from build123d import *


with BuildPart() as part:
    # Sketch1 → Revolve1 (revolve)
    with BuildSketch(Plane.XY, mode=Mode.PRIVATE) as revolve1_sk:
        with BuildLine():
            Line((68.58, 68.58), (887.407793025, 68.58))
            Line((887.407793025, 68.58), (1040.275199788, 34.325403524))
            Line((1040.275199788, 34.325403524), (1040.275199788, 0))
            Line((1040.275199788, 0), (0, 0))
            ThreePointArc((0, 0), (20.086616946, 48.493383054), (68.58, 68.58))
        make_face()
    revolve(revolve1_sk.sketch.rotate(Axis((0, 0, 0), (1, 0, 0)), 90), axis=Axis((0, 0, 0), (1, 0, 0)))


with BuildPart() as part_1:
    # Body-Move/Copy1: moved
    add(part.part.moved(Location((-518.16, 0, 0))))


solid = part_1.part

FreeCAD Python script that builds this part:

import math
import FreeCAD as App
import Part
import Sketcher
from FreeCAD import Vector
Q = App.Units.Quantity

doc = App.newDocument("Part")
body = doc.addObject("PartDesign::Body", "Body")

# Sketch on XY plane
sketch1 = doc.addObject("Sketcher::SketchObject", "Sketch")
body.addObject(sketch1)
sketch1.AttachmentSupport = (doc.XY_Plane, [""])
sketch1.MapMode = "FlatFace"
sketch1.addGeometry(Part.LineSegment(Vector(887, 69, 0), Vector(69, 69, 0)), False)
sketch1.addGeometry(Part.ArcOfCircle(Part.Circle(Vector(69, 0, 0), Vector(0, 0, 1), 69), math.radians(90), math.radians(180)), False)
sketch1.addGeometry(Part.LineSegment(Vector(0, 0, 0), Vector(1040, 0, 0)), False)
sketch1.addGeometry(Part.LineSegment(Vector(1040, 0, 0), Vector(1040, 34, 0)), False)
sketch1.addGeometry(Part.LineSegment(Vector(1040, 34, 0), Vector(887, 69, 0)), False)
sketch1.addConstraint(Sketcher.Constraint("Tangent", 0, 2, 1, 1))
sketch1.addConstraint(Sketcher.Constraint("Coincident", 1, 2, 2, 1))
sketch1.addConstraint(Sketcher.Constraint("Coincident", 2, 2, 3, 1))
sketch1.addConstraint(Sketcher.Constraint("Coincident", 3, 2, 4, 1))
sketch1.addConstraint(Sketcher.Constraint("Coincident", 4, 2, 0, 1))
sketch1.addConstraint(Sketcher.Constraint("Horizontal", 0))
sketch1.addConstraint(Sketcher.Constraint("Horizontal", 2))
sketch1.addConstraint(Sketcher.Constraint("Vertical", 3))
sketch1.addConstraint(Sketcher.Constraint("Coincident", 1, 2, -1, 1))
sketch1.addConstraint(Sketcher.Constraint("PointOnObject", 1, 3, -1))
sketch1.addConstraint(Sketcher.Constraint("Radius", 1, Q("2.7 in")))
sketch1.addConstraint(Sketcher.Constraint("DistanceX", 2, 1, 2, 2, 1040.2752))
sketch1.addConstraint(Sketcher.Constraint("DistanceX", 0, 2, 0, 1, 818.827793))
sketch1.addConstraint(Sketcher.Constraint("DistanceY", 3, 1, 3, 2, 34.325404))
revolution = doc.addObject("PartDesign::Revolution", "Revolution")
body.addObject(revolution)
revolution.Profile = sketch1
revolution.ReferenceAxis = (sketch1, ["H_Axis"])
revolution.Angle = 360
body2 = doc.addObject("PartDesign::Body", "Body001")
doc.recompute()

body.Placement = App.Placement(Vector(-518.16, 0, 0), App.Rotation(Vector(0, 0, 1), 0))
boolean = doc.addObject("PartDesign::Boolean", "Boolean")
body2.addObject(boolean)
boolean.Type = "Fuse"
boolean.addObjects([body])

doc.recompute()
